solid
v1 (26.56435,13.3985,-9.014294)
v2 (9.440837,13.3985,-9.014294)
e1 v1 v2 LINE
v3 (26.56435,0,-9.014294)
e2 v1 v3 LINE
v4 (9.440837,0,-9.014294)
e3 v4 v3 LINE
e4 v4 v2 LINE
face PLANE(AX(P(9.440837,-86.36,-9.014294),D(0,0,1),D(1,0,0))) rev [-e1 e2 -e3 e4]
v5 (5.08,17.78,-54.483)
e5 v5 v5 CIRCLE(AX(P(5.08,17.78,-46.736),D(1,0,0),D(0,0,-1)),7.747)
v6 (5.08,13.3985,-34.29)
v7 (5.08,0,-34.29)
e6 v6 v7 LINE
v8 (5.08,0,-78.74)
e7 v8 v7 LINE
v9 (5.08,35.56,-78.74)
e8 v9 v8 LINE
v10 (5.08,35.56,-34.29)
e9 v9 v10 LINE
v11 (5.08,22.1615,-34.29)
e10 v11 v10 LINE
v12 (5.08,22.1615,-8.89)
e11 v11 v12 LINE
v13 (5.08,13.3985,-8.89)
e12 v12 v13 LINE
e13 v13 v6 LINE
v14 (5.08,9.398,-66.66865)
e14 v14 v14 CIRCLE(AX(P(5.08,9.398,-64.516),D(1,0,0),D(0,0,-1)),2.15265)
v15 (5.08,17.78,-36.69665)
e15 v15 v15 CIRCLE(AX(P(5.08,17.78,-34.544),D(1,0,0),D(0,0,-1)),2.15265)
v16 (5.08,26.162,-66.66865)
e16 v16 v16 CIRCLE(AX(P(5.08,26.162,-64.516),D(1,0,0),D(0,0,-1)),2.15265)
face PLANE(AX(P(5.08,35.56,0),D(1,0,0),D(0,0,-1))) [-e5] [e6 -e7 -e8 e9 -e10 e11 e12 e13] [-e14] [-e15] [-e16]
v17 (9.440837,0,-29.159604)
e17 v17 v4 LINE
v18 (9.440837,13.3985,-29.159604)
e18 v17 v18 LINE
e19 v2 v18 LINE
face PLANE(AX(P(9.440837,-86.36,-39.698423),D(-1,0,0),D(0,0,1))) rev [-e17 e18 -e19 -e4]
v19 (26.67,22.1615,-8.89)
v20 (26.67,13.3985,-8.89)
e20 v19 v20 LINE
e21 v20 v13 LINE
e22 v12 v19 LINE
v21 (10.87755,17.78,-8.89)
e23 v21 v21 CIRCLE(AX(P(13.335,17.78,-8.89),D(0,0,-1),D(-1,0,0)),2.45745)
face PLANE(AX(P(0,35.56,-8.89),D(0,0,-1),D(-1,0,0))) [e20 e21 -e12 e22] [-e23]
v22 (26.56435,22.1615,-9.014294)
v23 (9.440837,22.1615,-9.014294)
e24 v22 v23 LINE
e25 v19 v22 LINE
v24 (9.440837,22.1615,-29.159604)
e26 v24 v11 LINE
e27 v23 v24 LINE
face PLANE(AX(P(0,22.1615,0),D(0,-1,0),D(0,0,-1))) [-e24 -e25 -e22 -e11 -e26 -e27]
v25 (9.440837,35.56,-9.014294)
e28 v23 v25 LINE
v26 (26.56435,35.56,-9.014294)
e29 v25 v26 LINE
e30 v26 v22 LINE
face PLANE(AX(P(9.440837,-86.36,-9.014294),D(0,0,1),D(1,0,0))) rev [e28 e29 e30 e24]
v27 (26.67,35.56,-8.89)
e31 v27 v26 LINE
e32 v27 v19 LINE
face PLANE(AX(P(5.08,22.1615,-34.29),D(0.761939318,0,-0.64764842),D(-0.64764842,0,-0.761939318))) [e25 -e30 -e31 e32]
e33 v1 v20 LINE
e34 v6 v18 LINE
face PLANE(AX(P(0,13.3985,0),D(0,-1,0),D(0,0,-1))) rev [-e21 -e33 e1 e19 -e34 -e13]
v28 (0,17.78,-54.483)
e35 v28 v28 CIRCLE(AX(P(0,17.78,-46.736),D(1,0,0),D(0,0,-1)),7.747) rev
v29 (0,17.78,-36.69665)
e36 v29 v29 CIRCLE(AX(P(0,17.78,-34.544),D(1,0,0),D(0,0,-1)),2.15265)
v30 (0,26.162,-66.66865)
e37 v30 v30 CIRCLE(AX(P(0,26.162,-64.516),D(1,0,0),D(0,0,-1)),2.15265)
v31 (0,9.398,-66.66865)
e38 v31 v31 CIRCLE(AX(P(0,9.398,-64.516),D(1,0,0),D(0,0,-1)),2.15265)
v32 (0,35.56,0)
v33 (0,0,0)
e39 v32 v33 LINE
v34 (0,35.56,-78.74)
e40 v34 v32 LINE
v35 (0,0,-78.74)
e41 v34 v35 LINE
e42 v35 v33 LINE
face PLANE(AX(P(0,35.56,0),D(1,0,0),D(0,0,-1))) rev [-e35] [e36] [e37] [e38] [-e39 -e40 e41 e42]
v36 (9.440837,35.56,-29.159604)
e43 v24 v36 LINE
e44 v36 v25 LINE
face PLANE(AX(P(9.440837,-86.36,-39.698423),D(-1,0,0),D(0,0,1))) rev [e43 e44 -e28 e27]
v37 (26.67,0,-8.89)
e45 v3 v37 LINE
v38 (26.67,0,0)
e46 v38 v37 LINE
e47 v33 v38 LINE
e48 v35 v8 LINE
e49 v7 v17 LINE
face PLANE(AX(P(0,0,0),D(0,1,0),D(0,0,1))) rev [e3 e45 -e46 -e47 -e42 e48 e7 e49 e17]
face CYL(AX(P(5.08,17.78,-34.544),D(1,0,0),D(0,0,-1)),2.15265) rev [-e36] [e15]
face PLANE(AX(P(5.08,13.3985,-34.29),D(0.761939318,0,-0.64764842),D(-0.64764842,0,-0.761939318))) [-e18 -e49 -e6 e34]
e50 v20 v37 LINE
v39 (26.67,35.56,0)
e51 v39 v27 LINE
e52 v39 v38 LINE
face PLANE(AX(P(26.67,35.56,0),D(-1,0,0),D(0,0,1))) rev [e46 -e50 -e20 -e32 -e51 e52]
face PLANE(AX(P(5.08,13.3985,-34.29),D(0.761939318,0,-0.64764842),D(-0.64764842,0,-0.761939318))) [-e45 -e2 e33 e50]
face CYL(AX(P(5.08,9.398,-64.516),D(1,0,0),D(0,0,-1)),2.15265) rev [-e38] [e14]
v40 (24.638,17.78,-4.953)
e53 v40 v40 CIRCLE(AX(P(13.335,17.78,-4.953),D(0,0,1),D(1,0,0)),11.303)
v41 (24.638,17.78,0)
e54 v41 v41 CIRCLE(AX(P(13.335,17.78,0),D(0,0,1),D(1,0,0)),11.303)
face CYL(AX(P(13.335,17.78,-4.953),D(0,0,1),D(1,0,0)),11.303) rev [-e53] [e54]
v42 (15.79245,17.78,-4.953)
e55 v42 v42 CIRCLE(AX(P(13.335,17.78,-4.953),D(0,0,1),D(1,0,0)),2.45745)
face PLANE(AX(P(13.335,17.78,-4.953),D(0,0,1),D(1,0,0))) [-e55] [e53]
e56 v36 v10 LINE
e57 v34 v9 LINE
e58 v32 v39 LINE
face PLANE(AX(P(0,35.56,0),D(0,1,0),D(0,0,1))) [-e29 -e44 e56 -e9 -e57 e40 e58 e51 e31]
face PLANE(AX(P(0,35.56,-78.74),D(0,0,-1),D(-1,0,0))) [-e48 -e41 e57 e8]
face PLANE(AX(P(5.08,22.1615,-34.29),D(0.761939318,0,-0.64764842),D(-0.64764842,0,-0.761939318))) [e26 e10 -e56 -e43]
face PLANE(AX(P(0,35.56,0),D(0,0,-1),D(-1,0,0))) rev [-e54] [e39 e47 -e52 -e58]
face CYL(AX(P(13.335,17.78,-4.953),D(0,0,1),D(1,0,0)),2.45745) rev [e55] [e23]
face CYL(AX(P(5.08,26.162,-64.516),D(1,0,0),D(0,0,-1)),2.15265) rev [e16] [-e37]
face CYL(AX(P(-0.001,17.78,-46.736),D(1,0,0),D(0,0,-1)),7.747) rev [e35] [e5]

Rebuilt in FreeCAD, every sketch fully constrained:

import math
import FreeCAD as App
import Part
import Sketcher
Q = App.Units.Quantity

doc = App.newDocument("Part")
params = doc.addObject("Spreadsheet::Sheet", "Params")
for row, (alias, value) in enumerate([
    ("sketch1_width", "0.2 in"),
    ("sketch1_height", "3.1 in"),
    ("sketch1_width2", "1.05 in"),
    ("sketch1_height2", "0.35 in"),
    ("pad1_length", "1.4 in"),
    ("sketch2_diameter", "0.89 in"),
    ("pocket1_length", "0.195 in"),
    ("hole_diameter", "0.1935 in"),
    ("sketch4_diameter", "0.61 in"),
    ("sketch5_radius", "0.305 in"),
    ("pocket3_length", "0.2 in"),
    ("sketch6_radius", "0.305 in"),
    ("pocket4_length", "0.2 in"),
    ("hole2_diameter", "0.1695 in"),
    ("hole2_depth", "0.2 in"),
    ("sketch8_height", "1 in"),
    ("sketch8_width", "0.85 in"),
    ("pad2_length", "0.5275 in"),
    ("sketch9_height", "1 in"),
    ("sketch9_width", "0.85 in"),
    ("pad3_length", "0.5275 in"),
    ("sketch10_diameter", "3 in"),
    ("pocket6_length", "4.8 in"),
], start=1):
    params.set(f"A{row}", alias)
    params.set(f"B{row}", "=" + value)
    params.setAlias(f"B{row}", alias)

body = doc.addObject("PartDesign::Body", "Body")

# Sketch on XZ plane
sketch1 = body.newObject("Sketcher::SketchObject", "Sketch")
sketch1.AttachmentSupport = (doc.getObject("XZ_Plane"), [""])
sketch1.MapMode = "FlatFace"
sketch1.addGeometry([
    Part.LineSegment(App.Vector(0, -79, 0), App.Vector(0, 0, 0)),  # 0
    Part.LineSegment(App.Vector(0, 0, 0), App.Vector(27, 0, 0)),  # 1
    Part.LineSegment(App.Vector(27, 0, 0), App.Vector(27, -9, 0)),  # 2
    Part.LineSegment(App.Vector(27, -9, 0), App.Vector(5, -9, 0)),  # 3
    Part.LineSegment(App.Vector(5, -9, 0), App.Vector(5, -79, 0)),  # 4
    Part.LineSegment(App.Vector(5, -79, 0), App.Vector(0, -79, 0)),  # 5
], False)
sketch1.addConstraint([
    Sketcher.Constraint("Coincident", 0, 2, 1, 1),
    Sketcher.Constraint("Coincident", 1, 2, 2, 1),
    Sketcher.Constraint("Coincident", 2, 2, 3, 1),
    Sketcher.Constraint("Coincident", 3, 2, 4, 1),
    Sketcher.Constraint("Coincident", 4, 2, 5, 1),
    Sketcher.Constraint("Coincident", 5, 2, 0, 1),
    Sketcher.Constraint("Vertical", 0),
    Sketcher.Constraint("Horizontal", 1),
    Sketcher.Constraint("Vertical", 2),
    Sketcher.Constraint("Horizontal", 3),
    Sketcher.Constraint("Vertical", 4),
    Sketcher.Constraint("Horizontal", 5),
    Sketcher.Constraint("Coincident", 0, 2, -1, 1),
    Sketcher.Constraint("DistanceX", 5, 2, 5, 1, Q("0.2 in")),
    Sketcher.Constraint("DistanceY", 0, 1, 0, 2, Q("3.1 in")),
    Sketcher.Constraint("DistanceX", 1, 1, 1, 2, Q("1.05 in")),
    Sketcher.Constraint("DistanceY", 2, 2, 2, 1, Q("0.35 in")),
])
sketch1.setExpression("Constraints[13]", "Params.sketch1_width")
sketch1.setExpression("Constraints[14]", "Params.sketch1_height")
sketch1.setExpression("Constraints[15]", "Params.sketch1_width2")
sketch1.setExpression("Constraints[16]", "Params.sketch1_height2")
pad1 = body.newObject("PartDesign::Pad", "Pad")
pad1.Profile = sketch1
pad1.setExpression("Length", "Params.pad1_length")
pad1.Reversed = True

# Sketch on XY plane
sketch2 = body.newObject("Sketcher::SketchObject", "Sketch001")
sketch2.AttachmentSupport = (doc.getObject("XY_Plane"), [""])
sketch2.MapMode = "FlatFace"
sketch2.addGeometry(Part.Circle(App.Vector(13, 18, 0), App.Vector(0, 0, 1), 11), False)
sketch2.addConstraint([
    Sketcher.Constraint("Diameter", 0, Q("0.89 in")),
    Sketcher.Constraint("DistanceY", -1, 1, 0, 3, Q("0.7 in")),
    Sketcher.Constraint("DistanceX", -1, 1, 0, 3, Q("0.525 in")),
])
sketch2.setExpression("Constraints[0]", "Params.sketch2_diameter")
pocket1 = body.newObject("PartDesign::Pocket", "Pocket")
pocket1.Profile = sketch2
pocket1.setExpression("Length", "Params.pocket1_length")

# Sketch on XY plane
sketch3 = body.newObject("Sketcher::SketchObject", "Sketch002")
sketch3.AttachmentSupport = (doc.getObject("XY_Plane"), [""])
sketch3.MapMode = "FlatFace"
sketch3.AttachmentOffset = App.Placement(App.Vector(0, 0, -0.195 * 25.4), App.Rotation())
sketch3.addGeometry(Part.Circle(App.Vector(13.3, 17.8, 0), App.Vector(0, 0, 1), 2.5), False)
sketch3.addConstraint([
    Sketcher.Constraint("Diameter", 0, Q("0.1935 in")),
    Sketcher.Constraint("DistanceY", -1, 1, 0, 3, Q("0.7 in")),
    Sketcher.Constraint("DistanceX", -1, 1, 0, 3, Q("0.525 in")),
])
doc.recompute()
hole = body.newObject("PartDesign::Hole", "Hole")
hole.Profile = sketch3
hole.ThreadType = "None"
hole.setExpression("Diameter", "Params.hole_diameter")
hole.DepthType = "ThroughAll"

# Sketch on YZ plane
sketch4 = body.newObject("Sketcher::SketchObject", "Sketch003")
sketch4.AttachmentSupport = (doc.getObject("YZ_Plane"), [""])
sketch4.MapMode = "FlatFace"
sketch4.AttachmentOffset = App.Placement(App.Vector(0, 0, 0.2 * 25.4), App.Rotation())
sketch4.addGeometry(Part.Circle(App.Vector(18, -47, 0), App.Vector(0, 0, 1), 8), False)
sketch4.addConstraint([
    Sketcher.Constraint("Diameter", 0, Q("0.61 in")),
    Sketcher.Constraint("DistanceX", -1, 1, 0, 3, Q("0.7 in")),
    Sketcher.Constraint("DistanceY", 0, 3, -1, 1, Q("1.84 in")),
])
sketch4.setExpression("Constraints[0]", "Params.sketch4_diameter")
pocket2 = body.newObject("PartDesign::Pocket", "Pocket001")
pocket2.Profile = sketch4
pocket2.Type = "UpToFirst"

# Sketch on YZ plane
sketch5 = body.newObject("Sketcher::SketchObject", "Sketch004")
sketch5.AttachmentSupport = (doc.getObject("YZ_Plane"), [""])
sketch5.MapMode = "FlatFace"
sketch5.AttachmentOffset = App.Placement(App.Vector(0, 0, 0.2 * 25.4), App.Rotation())
sketch5.addGeometry([
    Part.ArcOfCircle(Part.Circle(App.Vector(18, -47, 0), App.Vector(0, 0, 1), 8), math.radians(-90), math.radians(90)),
    Part.LineSegment(App.Vector(18, -39, 0), App.Vector(18, -54, 0)),
], False)
sketch5.addConstraint([
    Sketcher.Constraint("Coincident", 0, 1, 1, 2),
    Sketcher.Constraint("Coincident", 1, 1, 0, 2),
    Sketcher.Constraint("Vertical", 1),
    Sketcher.Constraint("Radius", 0, Q("0.305 in")),
    Sketcher.Constraint("DistanceX", -1, 1, 0, 3, Q("0.7 in")),
    Sketcher.Constraint("DistanceX", -1, 1, 0, 1, Q("0.7 in")),
    Sketcher.Constraint("DistanceY", 0, 3, -1, 1, Q("1.84 in")),
])
sketch5.setExpression("Constraints[3]", "Params.sketch5_radius")
pocket3 = body.newObject("PartDesign::Pocket", "Pocket002")
pocket3.Profile = sketch5
pocket3.setExpression("Length", "Params.pocket3_length")

# Sketch on YZ plane
sketch6 = body.newObject("Sketcher::SketchObject", "Sketch005")
sketch6.AttachmentSupport = (doc.getObject("YZ_Plane"), [""])
sketch6.MapMode = "FlatFace"
sketch6.AttachmentOffset = App.Placement(App.Vector(0, 0, 0.2 * 25.4), App.Rotation())
sketch6.addGeometry([
    Part.LineSegment(App.Vector(18, -54, 0), App.Vector(18, -39, 0)),
    Part.ArcOfCircle(Part.Circle(App.Vector(18, -47, 0), App.Vector(0, 0, 1), 8), math.radians(90), math.radians(270)),
], False)
sketch6.addConstraint([
    Sketcher.Constraint("Coincident", 0, 1, 1, 2),
    Sketcher.Constraint("Coincident", 1, 1, 0, 2),
    Sketcher.Constraint("Vertical", 0),
    Sketcher.Constraint("Vertical", 1, 3, 0, 1),
    Sketcher.Constraint("Radius", 1, Q("0.305 in")),
    Sketcher.Constraint("DistanceX", -1, 1, 1, 3, Q("0.7 in")),
    Sketcher.Constraint("DistanceY", 1, 3, -1, 1, Q("1.84 in")),
])
sketch6.setExpression("Constraints[4]", "Params.sketch6_radius")
pocket4 = body.newObject("PartDesign::Pocket", "Pocket003")
pocket4.Profile = sketch6
pocket4.setExpression("Length", "Params.pocket4_length")

# Sketch on YZ plane
sketch7 = body.newObject("Sketcher::SketchObject", "Sketch006")
sketch7.AttachmentSupport = (doc.getObject("YZ_Plane"), [""])
sketch7.MapMode = "FlatFace"
sketch7.AttachmentOffset = App.Placement(App.Vector(0, 0, 0.2 * 25.4), App.Rotation())
sketch7.addGeometry([
    Part.Circle(App.Vector(17.8, -34.5, 0), App.Vector(0, 0, 1), 2.2),
    Part.Circle(App.Vector(17.8, -46.7, 0), App.Vector(0, 0, 1), 2.2),
    Part.Circle(App.Vector(26.2, -64.5, 0), App.Vector(0, 0, 1), 2.2),
    Part.Circle(App.Vector(9.4, -64.5, 0), App.Vector(0, 0, 1), 2.2),
], False)
sketch7.addConstraint([
    Sketcher.Constraint("Equal", 0, 1),
    Sketcher.Constraint("Equal", 1, 2),
    Sketcher.Constraint("Equal", 2, 3),
    Sketcher.Constraint("Horizontal", 2, 3, 3, 3),
    Sketcher.Constraint("Vertical", 0, 3, 1, 3),
    Sketcher.Constraint("Diameter", 0, Q("0.1695 in")),
    Sketcher.Constraint("DistanceX", -1, 1, 0, 3, Q("0.7 in")),
    Sketcher.Constraint("DistanceY", 2, 3, 1, 3, Q("0.7 in")),
    Sketcher.Constraint("DistanceY", 0, 3, -1, 1, Q("1.36 in")),
    Sketcher.Constraint("DistanceY", 1, 3, -1, 1, Q("1.84 in")),
    Sketcher.Constraint("DistanceX", -1, 1, 2, 3, Q("1.03 in")),
    Sketcher.Constraint("DistanceX", -1, 1, 3, 3, Q("0.37 in")),
])
doc.recompute()
hole2 = body.newObject("PartDesign::Hole", "Hole001")
hole2.Profile = sketch7
hole2.ThreadType = "None"
hole2.setExpression("Diameter", "Params.hole2_diameter")
hole2.DepthType = "Dimension"
hole2.setExpression("Depth", "Params.hole2_depth")
hole2.DrillPoint = "Flat"

# Sketch on XZ plane
sketch8 = body.newObject("Sketcher::SketchObject", "Sketch007")
sketch8.AttachmentSupport = (doc.getObject("XZ_Plane"), [""])
sketch8.MapMode = "FlatFace"
sketch8.AttachmentOffset = App.Placement(App.Vector(0, 0, -1.4 * 25.4), App.Rotation())
sketch8.addGeometry([
    Part.LineSegment(App.Vector(5, -34, 0), App.Vector(5, -9, 0)),
    Part.LineSegment(App.Vector(5, -9, 0), App.Vector(27, -9, 0)),
    Part.LineSegment(App.Vector(27, -9, 0), App.Vector(5, -34, 0)),
], False)
sketch8.addConstraint([
    Sketcher.Constraint("Coincident", 0, 2, 1, 1),
    Sketcher.Constraint("Coincident", 1, 2, 2, 1),
    Sketcher.Constraint("Coincident", 2, 2, 0, 1),
    Sketcher.Constraint("Vertical", 0),
    Sketcher.Constraint("Horizontal", 1),
    Sketcher.Constraint("DistanceY", 0, 1, 0, 2, Q("1 in")),
    Sketcher.Constraint("DistanceX", 1, 1, 1, 2, Q("0.85 in")),
    Sketcher.Constraint("DistanceX", -1, 1, 0, 2, Q("0.2 in")),
    Sketcher.Constraint("DistanceY", 0, 2, -1, 1, Q("0.35 in")),
])
sketch8.setExpression("Constraints[5]", "Params.sketch8_height")
sketch8.setExpression("Constraints[6]", "Params.sketch8_width")
pad2 = body.newObject("PartDesign::Pad", "Pad001")
pad2.Profile = sketch8
pad2.setExpression("Length", "Params.pad2_length")

# Sketch on XZ plane
sketch9 = body.newObject("Sketcher::SketchObject", "Sketch008")
sketch9.AttachmentSupport = (doc.getObject("XZ_Plane"), [""])
sketch9.MapMode = "FlatFace"
sketch9.addGeometry([
    Part.LineSegment(App.Vector(27, -9, 0), App.Vector(5, -9, 0)),
    Part.LineSegment(App.Vector(5, -9, 0), App.Vector(5, -34, 0)),
    Part.LineSegment(App.Vector(5, -34, 0), App.Vector(27, -9, 0)),
], False)
sketch9.addConstraint([
    Sketcher.Constraint("Coincident", 0, 2, 1, 1),
    Sketcher.Constraint("Coincident", 1, 2, 2, 1),
    Sketcher.Constraint("Coincident", 2, 2, 0, 1),
    Sketcher.Constraint("Horizontal", 0),
    Sketcher.Constraint("Vertical", 1),
    Sketcher.Constraint("DistanceY", 1, 2, 1, 1, Q("1 in")),
    Sketcher.Constraint("DistanceX", 0, 2, 0, 1, Q("0.85 in")),
    Sketcher.Constraint("DistanceX", -1, 1, 0, 2, Q("0.2 in")),
    Sketcher.Constraint("DistanceY", 0, 2, -1, 1, Q("0.35 in")),
])
sketch9.setExpression("Constraints[5]", "Params.sketch9_height")
sketch9.setExpression("Constraints[6]", "Params.sketch9_width")
pad3 = body.newObject("PartDesign::Pad", "Pad002")
pad3.Profile = sketch9
pad3.setExpression("Length", "Params.pad3_length")
pad3.Reversed = True

# Sketch on XZ plane
sketch10 = body.newObject("Sketcher::SketchObject", "Sketch009")
sketch10.AttachmentSupport = (doc.getObject("XZ_Plane"), [""])
sketch10.MapMode = "FlatFace"
sketch10.AttachmentOffset = App.Placement(App.Vector(0, 0, -1.4 * 25.4), App.Rotation())
sketch10.addGeometry(Part.Circle(App.Vector(45, -45, 0), App.Vector(0, 0, 1), 38), False)
sketch10.addConstraint([
    Sketcher.Constraint("Diameter", 0, Q("3 in")),
    Sketcher.Constraint("DistanceX", -1, 1, 0, 3, 44.937863),
    Sketcher.Constraint("DistanceY", 0, 3, -1, 1, 45.023006),
])
sketch10.setExpression("Constraints[0]", "Params.sketch10_diameter")
pocket5 = body.newObject("PartDesign::Pocket", "Pocket004")
pocket5.Profile = sketch10
pocket5.Type = "ThroughAll"
pocket5.Reversed = True

# Sketch on XZ plane
sketch11 = body.newObject("Sketcher::SketchObject", "Sketch010")
sketch11.AttachmentSupport = (doc.getObject("XZ_Plane"), [""])
sketch11.MapMode = "FlatFace"
sketch11.AttachmentOffset = App.Placement(App.Vector(0, 0, -1.4 * 25.4), App.Rotation())
sketch11.addGeometry([
    Part.LineSegment(App.Vector(9, -40, 0), App.Vector(9, -9, 0)),
    Part.LineSegment(App.Vector(9, -9, 0), App.Vector(27, -9, 0)),
    Part.LineSegment(App.Vector(27, -9, 0), App.Vector(27, -40, 0)),
    Part.LineSegment(App.Vector(27, -40, 0), App.Vector(9, -40, 0)),
], False)
sketch11.addConstraint([
    Sketcher.Constraint("Coincident", 0, 2, 1, 1),
    Sketcher.Constraint("Coincident", 1, 2, 2, 1),
    Sketcher.Constraint("Coincident", 2, 2, 3, 1),
    Sketcher.Constraint("Coincident", 3, 2, 0, 1),
    Sketcher.Constraint("Vertical", 0),
    Sketcher.Constraint("Horizontal", 1),
    Sketcher.Constraint("Vertical", 2),
    Sketcher.Constraint("Horizontal", 3),
    Sketcher.Constraint("DistanceX", 1, 1, 1, 2, 17.828699),
    Sketcher.Constraint("DistanceY", 0, 1, 0, 2, 30.68413),
    Sketcher.Constraint("DistanceX", -1, 1, 0, 2, 9.440837),
    Sketcher.Constraint("DistanceY", 0, 2, -1, 1, 9.014294),
])
pocket6 = body.newObject("PartDesign::Pocket", "Pocket005")
pocket6.Profile = sketch11
pocket6.setExpression("Length", "Params.pocket6_length")
pocket6.Reversed = True

doc.recompute()
